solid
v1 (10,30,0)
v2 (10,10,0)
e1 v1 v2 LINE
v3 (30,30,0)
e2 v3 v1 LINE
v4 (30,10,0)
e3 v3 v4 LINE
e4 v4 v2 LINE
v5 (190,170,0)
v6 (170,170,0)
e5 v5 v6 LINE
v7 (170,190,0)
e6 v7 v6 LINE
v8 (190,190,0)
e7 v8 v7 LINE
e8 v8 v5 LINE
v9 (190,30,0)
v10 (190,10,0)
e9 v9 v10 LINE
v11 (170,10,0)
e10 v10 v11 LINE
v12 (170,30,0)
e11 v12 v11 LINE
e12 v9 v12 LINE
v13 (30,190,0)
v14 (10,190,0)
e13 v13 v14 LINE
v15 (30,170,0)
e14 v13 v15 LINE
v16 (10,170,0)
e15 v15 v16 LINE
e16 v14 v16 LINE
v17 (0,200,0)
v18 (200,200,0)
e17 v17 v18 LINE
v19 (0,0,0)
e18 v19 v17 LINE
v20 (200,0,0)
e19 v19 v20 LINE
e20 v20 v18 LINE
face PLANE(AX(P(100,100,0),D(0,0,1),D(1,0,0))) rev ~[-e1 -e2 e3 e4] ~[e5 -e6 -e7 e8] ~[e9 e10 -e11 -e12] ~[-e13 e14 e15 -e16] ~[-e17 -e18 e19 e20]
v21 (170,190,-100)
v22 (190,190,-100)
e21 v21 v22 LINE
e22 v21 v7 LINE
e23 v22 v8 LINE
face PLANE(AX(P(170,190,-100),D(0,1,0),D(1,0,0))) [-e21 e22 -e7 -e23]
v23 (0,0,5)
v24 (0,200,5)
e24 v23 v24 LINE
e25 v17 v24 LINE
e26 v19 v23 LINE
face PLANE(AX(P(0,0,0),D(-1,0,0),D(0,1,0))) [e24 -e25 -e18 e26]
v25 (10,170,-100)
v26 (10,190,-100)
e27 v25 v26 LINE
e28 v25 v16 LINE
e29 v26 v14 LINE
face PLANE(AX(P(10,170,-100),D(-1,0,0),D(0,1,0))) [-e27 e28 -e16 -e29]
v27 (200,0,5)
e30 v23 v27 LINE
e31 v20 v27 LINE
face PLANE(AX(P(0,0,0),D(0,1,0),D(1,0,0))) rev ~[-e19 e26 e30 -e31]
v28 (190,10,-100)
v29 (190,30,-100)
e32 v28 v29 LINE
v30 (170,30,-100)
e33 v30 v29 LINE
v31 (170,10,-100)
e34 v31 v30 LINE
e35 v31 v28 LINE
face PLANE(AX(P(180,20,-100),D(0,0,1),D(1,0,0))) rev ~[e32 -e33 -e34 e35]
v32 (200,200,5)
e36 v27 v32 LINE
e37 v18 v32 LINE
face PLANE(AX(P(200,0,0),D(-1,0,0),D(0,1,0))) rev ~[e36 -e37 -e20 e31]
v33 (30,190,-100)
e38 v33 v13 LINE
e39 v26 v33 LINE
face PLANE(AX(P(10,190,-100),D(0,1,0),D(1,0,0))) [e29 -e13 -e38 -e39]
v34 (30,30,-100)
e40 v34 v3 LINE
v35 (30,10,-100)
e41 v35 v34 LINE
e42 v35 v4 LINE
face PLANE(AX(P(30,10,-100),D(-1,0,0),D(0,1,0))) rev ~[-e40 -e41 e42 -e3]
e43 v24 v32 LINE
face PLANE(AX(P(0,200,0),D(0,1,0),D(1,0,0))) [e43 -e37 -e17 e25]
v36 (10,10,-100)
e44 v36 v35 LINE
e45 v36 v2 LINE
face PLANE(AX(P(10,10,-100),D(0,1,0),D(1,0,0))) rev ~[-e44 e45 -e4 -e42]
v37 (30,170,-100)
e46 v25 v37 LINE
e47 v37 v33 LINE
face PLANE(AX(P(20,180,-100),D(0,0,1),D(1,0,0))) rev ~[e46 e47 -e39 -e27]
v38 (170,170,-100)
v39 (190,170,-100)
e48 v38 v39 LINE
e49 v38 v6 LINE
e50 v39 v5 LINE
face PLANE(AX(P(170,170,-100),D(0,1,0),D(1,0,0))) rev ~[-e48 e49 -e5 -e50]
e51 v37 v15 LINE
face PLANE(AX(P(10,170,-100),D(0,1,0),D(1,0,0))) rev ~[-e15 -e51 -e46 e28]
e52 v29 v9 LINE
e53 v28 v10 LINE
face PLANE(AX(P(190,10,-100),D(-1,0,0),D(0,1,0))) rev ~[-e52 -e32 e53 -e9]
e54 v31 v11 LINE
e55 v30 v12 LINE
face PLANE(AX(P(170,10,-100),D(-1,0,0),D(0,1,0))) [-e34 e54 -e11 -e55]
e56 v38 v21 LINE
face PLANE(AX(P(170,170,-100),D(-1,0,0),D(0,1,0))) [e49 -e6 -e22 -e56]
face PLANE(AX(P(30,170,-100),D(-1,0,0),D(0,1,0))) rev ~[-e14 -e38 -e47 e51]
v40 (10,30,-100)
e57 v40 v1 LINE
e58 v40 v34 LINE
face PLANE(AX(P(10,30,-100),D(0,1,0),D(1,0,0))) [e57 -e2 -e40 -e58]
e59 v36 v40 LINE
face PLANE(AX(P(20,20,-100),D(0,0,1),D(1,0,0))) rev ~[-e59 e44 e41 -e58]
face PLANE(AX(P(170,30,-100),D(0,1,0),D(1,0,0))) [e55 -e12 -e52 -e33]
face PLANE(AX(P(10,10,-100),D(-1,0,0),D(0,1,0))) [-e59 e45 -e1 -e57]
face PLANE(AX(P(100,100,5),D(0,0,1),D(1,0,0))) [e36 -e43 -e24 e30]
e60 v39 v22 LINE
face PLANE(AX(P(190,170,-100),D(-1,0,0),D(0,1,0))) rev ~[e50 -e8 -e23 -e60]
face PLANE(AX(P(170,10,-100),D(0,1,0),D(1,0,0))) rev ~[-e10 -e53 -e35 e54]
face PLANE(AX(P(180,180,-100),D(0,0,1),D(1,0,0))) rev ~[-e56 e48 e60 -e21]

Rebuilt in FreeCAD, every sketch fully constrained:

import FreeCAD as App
import Part
import Sketcher

V = App.Vector

doc = App.newDocument("Part")
params = doc.addObject("Spreadsheet::Sheet", "Params")
for row, (alias, value) in enumerate([
    ("sketch1_width", "20 mm"),
    ("pad1_length", "101 mm"),
    ("sketch2_width", "20 mm"),
    ("pad2_length", "101 mm"),
    ("sketch3_width", "20 mm"),
    ("pad3_length", "101 mm"),
    ("sketch4_width", "20 mm"),
    ("pad4_length", "101 mm"),
    ("sketch5_width", "200 mm"),
    ("pad5_length", "5 mm"),
], start=1):
    params.set(f"A{row}", alias)
    params.set(f"B{row}", "=" + value)
    params.setAlias(f"B{row}", alias)

body = doc.addObject("PartDesign::Body", "Body")

# Sketch on XY plane
sketch1 = body.newObject("Sketcher::SketchObject", "Sketch")
sketch1.AttachmentSupport = (doc.getObject("XY_Plane"), [""])
sketch1.MapMode = "FlatFace"
sketch1.AttachmentOffset = App.Placement(V(0, 0, -100), App.Rotation())
sketch1.addGeometry(Part.LineSegment(V(10, 30, 0), V(10, 10, 0)), False)
sketch1.addGeometry(Part.LineSegment(V(10, 10, 0), V(30, 10, 0)), False)
sketch1.addGeometry(Part.LineSegment(V(30, 10, 0), V(30, 30, 0)), False)
sketch1.addGeometry(Part.LineSegment(V(30, 30, 0), V(10, 30, 0)), False)
sketch1.addConstraint(Sketcher.Constraint("Coincident", 0, 2, 1, 1))
sketch1.addConstraint(Sketcher.Constraint("Coincident", 1, 2, 2, 1))
sketch1.addConstraint(Sketcher.Constraint("Coincident", 2, 2, 3, 1))
sketch1.addConstraint(Sketcher.Constraint("Coincident", 3, 2, 0, 1))
sketch1.addConstraint(Sketcher.Constraint("Vertical", 0))
sketch1.addConstraint(Sketcher.Constraint("Horizontal", 1))
sketch1.addConstraint(Sketcher.Constraint("Vertical", 2))
sketch1.addConstraint(Sketcher.Constraint("Horizontal", 3))
sketch1.addConstraint(Sketcher.Constraint("Equal", 3, 0))
sketch1.addConstraint(Sketcher.Constraint("DistanceX", 1, 1, 1, 2, 20.0))
sketch1.addConstraint(Sketcher.Constraint("DistanceX", -1, 1, 0, 2, 10.0))
sketch1.addConstraint(Sketcher.Constraint("DistanceY", -1, 1, 0, 2, 10.0))
sketch1.setExpression("Constraints[9]", "Params.sketch1_width")
pad1 = body.newObject("PartDesign::Pad", "Pad")
pad1.Profile = sketch1
pad1.setExpression("Length", "Params.pad1_length")
body2 = doc.addObject("PartDesign::Body", "Body001")

# Sketch on XY plane
sketch2 = body2.newObject("Sketcher::SketchObject", "Sketch001")
sketch2.AttachmentSupport = (doc.getObject("XY_Plane001"), [""])
sketch2.MapMode = "FlatFace"
sketch2.AttachmentOffset = App.Placement(V(0, 0, -100), App.Rotation())
sketch2.addGeometry(Part.LineSegment(V(170, 30, 0), V(170, 10, 0)), False)
sketch2.addGeometry(Part.LineSegment(V(170, 10, 0), V(190, 10, 0)), False)
sketch2.addGeometry(Part.LineSegment(V(190, 10, 0), V(190, 30, 0)), False)
sketch2.addGeometry(Part.LineSegment(V(190, 30, 0), V(170, 30, 0)), False)
sketch2.addConstraint(Sketcher.Constraint("Coincident", 0, 2, 1, 1))
sketch2.addConstraint(Sketcher.Constraint("Coincident", 1, 2, 2, 1))
sketch2.addConstraint(Sketcher.Constraint("Coincident", 2, 2, 3, 1))
sketch2.addConstraint(Sketcher.Constraint("Coincident", 3, 2, 0, 1))
sketch2.addConstraint(Sketcher.Constraint("Vertical", 0))
sketch2.addConstraint(Sketcher.Constraint("Horizontal", 1))
sketch2.addConstraint(Sketcher.Constraint("Vertical", 2))
sketch2.addConstraint(Sketcher.Constraint("Horizontal", 3))
sketch2.addConstraint(Sketcher.Constraint("Equal", 3, 0))
sketch2.addConstraint(Sketcher.Constraint("DistanceX", 1, 1, 1, 2, 20.0))
sketch2.addConstraint(Sketcher.Constraint("DistanceX", -1, 1, 0, 2, 170.0))
sketch2.addConstraint(Sketcher.Constraint("DistanceY", -1, 1, 0, 2, 10.0))
sketch2.setExpression("Constraints[9]", "Params.sketch2_width")
pad2 = body2.newObject("PartDesign::Pad", "Pad001")
pad2.Profile = sketch2
pad2.setExpression("Length", "Params.pad2_length")
body3 = doc.addObject("PartDesign::Body", "Body002")

# Sketch on XY plane
sketch3 = body3.newObject("Sketcher::SketchObject", "Sketch002")
sketch3.AttachmentSupport = (doc.getObject("XY_Plane002"), [""])
sketch3.MapMode = "FlatFace"
sketch3.AttachmentOffset = App.Placement(V(0, 0, -100), App.Rotation())
sketch3.addGeometry(Part.LineSegment(V(10, 190, 0), V(10, 170, 0)), False)
sketch3.addGeometry(Part.LineSegment(V(10, 170, 0), V(30, 170, 0)), False)
sketch3.addGeometry(Part.LineSegment(V(30, 170, 0), V(30, 190, 0)), False)
sketch3.addGeometry(Part.LineSegment(V(30, 190, 0), V(10, 190, 0)), False)
sketch3.addConstraint(Sketcher.Constraint("Coincident", 0, 2, 1, 1))
sketch3.addConstraint(Sketcher.Constraint("Coincident", 1, 2, 2, 1))
sketch3.addConstraint(Sketcher.Constraint("Coincident", 2, 2, 3, 1))
sketch3.addConstraint(Sketcher.Constraint("Coincident", 3, 2, 0, 1))
sketch3.addConstraint(Sketcher.Constraint("Vertical", 0))
sketch3.addConstraint(Sketcher.Constraint("Horizontal", 1))
sketch3.addConstraint(Sketcher.Constraint("Vertical", 2))
sketch3.addConstraint(Sketcher.Constraint("Horizontal", 3))
sketch3.addConstraint(Sketcher.Constraint("Equal", 3, 0))
sketch3.addConstraint(Sketcher.Constraint("DistanceX", 1, 1, 1, 2, 20.0))
sketch3.addConstraint(Sketcher.Constraint("DistanceX", -1, 1, 0, 2, 10.0))
sketch3.addConstraint(Sketcher.Constraint("DistanceY", -1, 1, 0, 2, 170.0))
sketch3.setExpression("Constraints[9]", "Params.sketch3_width")
pad3 = body3.newObject("PartDesign::Pad", "Pad002")
pad3.Profile = sketch3
pad3.setExpression("Length", "Params.pad3_length")
body4 = doc.addObject("PartDesign::Body", "Body003")

# Sketch on XY plane
sketch4 = body4.newObject("Sketcher::SketchObject", "Sketch003")
sketch4.AttachmentSupport = (doc.getObject("XY_Plane003"), [""])
sketch4.MapMode = "FlatFace"
sketch4.AttachmentOffset = App.Placement(V(0, 0, -100), App.Rotation())
sketch4.addGeometry(Part.LineSegment(V(170, 190, 0), V(170, 170, 0)), False)
sketch4.addGeometry(Part.LineSegment(V(170, 170, 0), V(190, 170, 0)), False)
sketch4.addGeometry(Part.LineSegment(V(190, 170, 0), V(190, 190, 0)), False)
sketch4.addGeometry(Part.LineSegment(V(190, 190, 0), V(170, 190, 0)), False)
sketch4.addConstraint(Sketcher.Constraint("Coincident", 0, 2, 1, 1))
sketch4.addConstraint(Sketcher.Constraint("Coincident", 1, 2, 2, 1))
sketch4.addConstraint(Sketcher.Constraint("Coincident", 2, 2, 3, 1))
sketch4.addConstraint(Sketcher.Constraint("Coincident", 3, 2, 0, 1))
sketch4.addConstraint(Sketcher.Constraint("Vertical", 0))
sketch4.addConstraint(Sketcher.Constraint("Horizontal", 1))
sketch4.addConstraint(Sketcher.Constraint("Vertical", 2))
sketch4.addConstraint(Sketcher.Constraint("Horizontal", 3))
sketch4.addConstraint(Sketcher.Constraint("Equal", 3, 0))
sketch4.addConstraint(Sketcher.Constraint("DistanceX", 1, 1, 1, 2, 20.0))
sketch4.addConstraint(Sketcher.Constraint("DistanceX", -1, 1, 0, 2, 170.0))
sketch4.addConstraint(Sketcher.Constraint("DistanceY", -1, 1, 0, 2, 170.0))
sketch4.setExpression("Constraints[9]", "Params.sketch4_width")
pad4 = body4.newObject("PartDesign::Pad", "Pad003")
pad4.Profile = sketch4
pad4.setExpression("Length", "Params.pad4_length")
body5 = doc.addObject("PartDesign::Body", "Body004")

# Sketch on XY plane
sketch5 = body5.newObject("Sketcher::SketchObject", "Sketch004")
sketch5.AttachmentSupport = (doc.getObject("XY_Plane004"), [""])
sketch5.MapMode = "FlatFace"
sketch5.addGeometry(Part.LineSegment(V(0, 200, 0), V(0, 0, 0)), False)
sketch5.addGeometry(Part.LineSegment(V(0, 0, 0), V(200, 0, 0)), False)
sketch5.addGeometry(Part.LineSegment(V(200, 0, 0), V(200, 200, 0)), False)
sketch5.addGeometry(Part.LineSegment(V(200, 200, 0), V(0, 200, 0)), False)
sketch5.addConstraint(Sketcher.Constraint("Coincident", 0, 2, 1, 1))
sketch5.addConstraint(Sketcher.Constraint("Coincident", 1, 2, 2, 1))
sketch5.addConstraint(Sketcher.Constraint("Coincident", 2, 2, 3, 1))
sketch5.addConstraint(Sketcher.Constraint("Coincident", 3, 2, 0, 1))
sketch5.addConstraint(Sketcher.Constraint("Vertical", 0))
sketch5.addConstraint(Sketcher.Constraint("Horizontal", 1))
sketch5.addConstraint(Sketcher.Constraint("Vertical", 2))
sketch5.addConstraint(Sketcher.Constraint("Horizontal", 3))
sketch5.addConstraint(Sketcher.Constraint("Coincident", 0, 2, -1, 1))
sketch5.addConstraint(Sketcher.Constraint("Equal", 3, 0))
sketch5.addConstraint(Sketcher.Constraint("DistanceX", 1, 1, 1, 2, 200.0))
sketch5.setExpression("Constraints[10]", "Params.sketch5_width")
pad5 = body5.newObject("PartDesign::Pad", "Pad004")
pad5.Profile = sketch5
pad5.setExpression("Length", "Params.pad5_length")
doc.recompute()

boolean = body5.newObject("PartDesign::Boolean", "Boolean")
boolean.Type = "Fuse"
boolean.addObjects([body])
doc.recompute()

boolean2 = body5.newObject("PartDesign::Boolean", "Boolean001")
boolean2.Type = "Fuse"
boolean2.addObjects([body2])
doc.recompute()

boolean3 = body5.newObject("PartDesign::Boolean", "Boolean002")
boolean3.Type = "Fuse"
boolean3.addObjects([body3])
doc.recompute()

boolean4 = body5.newObject("PartDesign::Boolean", "Boolean003")
boolean4.Type = "Fuse"
boolean4.addObjects([body4])

doc.recompute()
